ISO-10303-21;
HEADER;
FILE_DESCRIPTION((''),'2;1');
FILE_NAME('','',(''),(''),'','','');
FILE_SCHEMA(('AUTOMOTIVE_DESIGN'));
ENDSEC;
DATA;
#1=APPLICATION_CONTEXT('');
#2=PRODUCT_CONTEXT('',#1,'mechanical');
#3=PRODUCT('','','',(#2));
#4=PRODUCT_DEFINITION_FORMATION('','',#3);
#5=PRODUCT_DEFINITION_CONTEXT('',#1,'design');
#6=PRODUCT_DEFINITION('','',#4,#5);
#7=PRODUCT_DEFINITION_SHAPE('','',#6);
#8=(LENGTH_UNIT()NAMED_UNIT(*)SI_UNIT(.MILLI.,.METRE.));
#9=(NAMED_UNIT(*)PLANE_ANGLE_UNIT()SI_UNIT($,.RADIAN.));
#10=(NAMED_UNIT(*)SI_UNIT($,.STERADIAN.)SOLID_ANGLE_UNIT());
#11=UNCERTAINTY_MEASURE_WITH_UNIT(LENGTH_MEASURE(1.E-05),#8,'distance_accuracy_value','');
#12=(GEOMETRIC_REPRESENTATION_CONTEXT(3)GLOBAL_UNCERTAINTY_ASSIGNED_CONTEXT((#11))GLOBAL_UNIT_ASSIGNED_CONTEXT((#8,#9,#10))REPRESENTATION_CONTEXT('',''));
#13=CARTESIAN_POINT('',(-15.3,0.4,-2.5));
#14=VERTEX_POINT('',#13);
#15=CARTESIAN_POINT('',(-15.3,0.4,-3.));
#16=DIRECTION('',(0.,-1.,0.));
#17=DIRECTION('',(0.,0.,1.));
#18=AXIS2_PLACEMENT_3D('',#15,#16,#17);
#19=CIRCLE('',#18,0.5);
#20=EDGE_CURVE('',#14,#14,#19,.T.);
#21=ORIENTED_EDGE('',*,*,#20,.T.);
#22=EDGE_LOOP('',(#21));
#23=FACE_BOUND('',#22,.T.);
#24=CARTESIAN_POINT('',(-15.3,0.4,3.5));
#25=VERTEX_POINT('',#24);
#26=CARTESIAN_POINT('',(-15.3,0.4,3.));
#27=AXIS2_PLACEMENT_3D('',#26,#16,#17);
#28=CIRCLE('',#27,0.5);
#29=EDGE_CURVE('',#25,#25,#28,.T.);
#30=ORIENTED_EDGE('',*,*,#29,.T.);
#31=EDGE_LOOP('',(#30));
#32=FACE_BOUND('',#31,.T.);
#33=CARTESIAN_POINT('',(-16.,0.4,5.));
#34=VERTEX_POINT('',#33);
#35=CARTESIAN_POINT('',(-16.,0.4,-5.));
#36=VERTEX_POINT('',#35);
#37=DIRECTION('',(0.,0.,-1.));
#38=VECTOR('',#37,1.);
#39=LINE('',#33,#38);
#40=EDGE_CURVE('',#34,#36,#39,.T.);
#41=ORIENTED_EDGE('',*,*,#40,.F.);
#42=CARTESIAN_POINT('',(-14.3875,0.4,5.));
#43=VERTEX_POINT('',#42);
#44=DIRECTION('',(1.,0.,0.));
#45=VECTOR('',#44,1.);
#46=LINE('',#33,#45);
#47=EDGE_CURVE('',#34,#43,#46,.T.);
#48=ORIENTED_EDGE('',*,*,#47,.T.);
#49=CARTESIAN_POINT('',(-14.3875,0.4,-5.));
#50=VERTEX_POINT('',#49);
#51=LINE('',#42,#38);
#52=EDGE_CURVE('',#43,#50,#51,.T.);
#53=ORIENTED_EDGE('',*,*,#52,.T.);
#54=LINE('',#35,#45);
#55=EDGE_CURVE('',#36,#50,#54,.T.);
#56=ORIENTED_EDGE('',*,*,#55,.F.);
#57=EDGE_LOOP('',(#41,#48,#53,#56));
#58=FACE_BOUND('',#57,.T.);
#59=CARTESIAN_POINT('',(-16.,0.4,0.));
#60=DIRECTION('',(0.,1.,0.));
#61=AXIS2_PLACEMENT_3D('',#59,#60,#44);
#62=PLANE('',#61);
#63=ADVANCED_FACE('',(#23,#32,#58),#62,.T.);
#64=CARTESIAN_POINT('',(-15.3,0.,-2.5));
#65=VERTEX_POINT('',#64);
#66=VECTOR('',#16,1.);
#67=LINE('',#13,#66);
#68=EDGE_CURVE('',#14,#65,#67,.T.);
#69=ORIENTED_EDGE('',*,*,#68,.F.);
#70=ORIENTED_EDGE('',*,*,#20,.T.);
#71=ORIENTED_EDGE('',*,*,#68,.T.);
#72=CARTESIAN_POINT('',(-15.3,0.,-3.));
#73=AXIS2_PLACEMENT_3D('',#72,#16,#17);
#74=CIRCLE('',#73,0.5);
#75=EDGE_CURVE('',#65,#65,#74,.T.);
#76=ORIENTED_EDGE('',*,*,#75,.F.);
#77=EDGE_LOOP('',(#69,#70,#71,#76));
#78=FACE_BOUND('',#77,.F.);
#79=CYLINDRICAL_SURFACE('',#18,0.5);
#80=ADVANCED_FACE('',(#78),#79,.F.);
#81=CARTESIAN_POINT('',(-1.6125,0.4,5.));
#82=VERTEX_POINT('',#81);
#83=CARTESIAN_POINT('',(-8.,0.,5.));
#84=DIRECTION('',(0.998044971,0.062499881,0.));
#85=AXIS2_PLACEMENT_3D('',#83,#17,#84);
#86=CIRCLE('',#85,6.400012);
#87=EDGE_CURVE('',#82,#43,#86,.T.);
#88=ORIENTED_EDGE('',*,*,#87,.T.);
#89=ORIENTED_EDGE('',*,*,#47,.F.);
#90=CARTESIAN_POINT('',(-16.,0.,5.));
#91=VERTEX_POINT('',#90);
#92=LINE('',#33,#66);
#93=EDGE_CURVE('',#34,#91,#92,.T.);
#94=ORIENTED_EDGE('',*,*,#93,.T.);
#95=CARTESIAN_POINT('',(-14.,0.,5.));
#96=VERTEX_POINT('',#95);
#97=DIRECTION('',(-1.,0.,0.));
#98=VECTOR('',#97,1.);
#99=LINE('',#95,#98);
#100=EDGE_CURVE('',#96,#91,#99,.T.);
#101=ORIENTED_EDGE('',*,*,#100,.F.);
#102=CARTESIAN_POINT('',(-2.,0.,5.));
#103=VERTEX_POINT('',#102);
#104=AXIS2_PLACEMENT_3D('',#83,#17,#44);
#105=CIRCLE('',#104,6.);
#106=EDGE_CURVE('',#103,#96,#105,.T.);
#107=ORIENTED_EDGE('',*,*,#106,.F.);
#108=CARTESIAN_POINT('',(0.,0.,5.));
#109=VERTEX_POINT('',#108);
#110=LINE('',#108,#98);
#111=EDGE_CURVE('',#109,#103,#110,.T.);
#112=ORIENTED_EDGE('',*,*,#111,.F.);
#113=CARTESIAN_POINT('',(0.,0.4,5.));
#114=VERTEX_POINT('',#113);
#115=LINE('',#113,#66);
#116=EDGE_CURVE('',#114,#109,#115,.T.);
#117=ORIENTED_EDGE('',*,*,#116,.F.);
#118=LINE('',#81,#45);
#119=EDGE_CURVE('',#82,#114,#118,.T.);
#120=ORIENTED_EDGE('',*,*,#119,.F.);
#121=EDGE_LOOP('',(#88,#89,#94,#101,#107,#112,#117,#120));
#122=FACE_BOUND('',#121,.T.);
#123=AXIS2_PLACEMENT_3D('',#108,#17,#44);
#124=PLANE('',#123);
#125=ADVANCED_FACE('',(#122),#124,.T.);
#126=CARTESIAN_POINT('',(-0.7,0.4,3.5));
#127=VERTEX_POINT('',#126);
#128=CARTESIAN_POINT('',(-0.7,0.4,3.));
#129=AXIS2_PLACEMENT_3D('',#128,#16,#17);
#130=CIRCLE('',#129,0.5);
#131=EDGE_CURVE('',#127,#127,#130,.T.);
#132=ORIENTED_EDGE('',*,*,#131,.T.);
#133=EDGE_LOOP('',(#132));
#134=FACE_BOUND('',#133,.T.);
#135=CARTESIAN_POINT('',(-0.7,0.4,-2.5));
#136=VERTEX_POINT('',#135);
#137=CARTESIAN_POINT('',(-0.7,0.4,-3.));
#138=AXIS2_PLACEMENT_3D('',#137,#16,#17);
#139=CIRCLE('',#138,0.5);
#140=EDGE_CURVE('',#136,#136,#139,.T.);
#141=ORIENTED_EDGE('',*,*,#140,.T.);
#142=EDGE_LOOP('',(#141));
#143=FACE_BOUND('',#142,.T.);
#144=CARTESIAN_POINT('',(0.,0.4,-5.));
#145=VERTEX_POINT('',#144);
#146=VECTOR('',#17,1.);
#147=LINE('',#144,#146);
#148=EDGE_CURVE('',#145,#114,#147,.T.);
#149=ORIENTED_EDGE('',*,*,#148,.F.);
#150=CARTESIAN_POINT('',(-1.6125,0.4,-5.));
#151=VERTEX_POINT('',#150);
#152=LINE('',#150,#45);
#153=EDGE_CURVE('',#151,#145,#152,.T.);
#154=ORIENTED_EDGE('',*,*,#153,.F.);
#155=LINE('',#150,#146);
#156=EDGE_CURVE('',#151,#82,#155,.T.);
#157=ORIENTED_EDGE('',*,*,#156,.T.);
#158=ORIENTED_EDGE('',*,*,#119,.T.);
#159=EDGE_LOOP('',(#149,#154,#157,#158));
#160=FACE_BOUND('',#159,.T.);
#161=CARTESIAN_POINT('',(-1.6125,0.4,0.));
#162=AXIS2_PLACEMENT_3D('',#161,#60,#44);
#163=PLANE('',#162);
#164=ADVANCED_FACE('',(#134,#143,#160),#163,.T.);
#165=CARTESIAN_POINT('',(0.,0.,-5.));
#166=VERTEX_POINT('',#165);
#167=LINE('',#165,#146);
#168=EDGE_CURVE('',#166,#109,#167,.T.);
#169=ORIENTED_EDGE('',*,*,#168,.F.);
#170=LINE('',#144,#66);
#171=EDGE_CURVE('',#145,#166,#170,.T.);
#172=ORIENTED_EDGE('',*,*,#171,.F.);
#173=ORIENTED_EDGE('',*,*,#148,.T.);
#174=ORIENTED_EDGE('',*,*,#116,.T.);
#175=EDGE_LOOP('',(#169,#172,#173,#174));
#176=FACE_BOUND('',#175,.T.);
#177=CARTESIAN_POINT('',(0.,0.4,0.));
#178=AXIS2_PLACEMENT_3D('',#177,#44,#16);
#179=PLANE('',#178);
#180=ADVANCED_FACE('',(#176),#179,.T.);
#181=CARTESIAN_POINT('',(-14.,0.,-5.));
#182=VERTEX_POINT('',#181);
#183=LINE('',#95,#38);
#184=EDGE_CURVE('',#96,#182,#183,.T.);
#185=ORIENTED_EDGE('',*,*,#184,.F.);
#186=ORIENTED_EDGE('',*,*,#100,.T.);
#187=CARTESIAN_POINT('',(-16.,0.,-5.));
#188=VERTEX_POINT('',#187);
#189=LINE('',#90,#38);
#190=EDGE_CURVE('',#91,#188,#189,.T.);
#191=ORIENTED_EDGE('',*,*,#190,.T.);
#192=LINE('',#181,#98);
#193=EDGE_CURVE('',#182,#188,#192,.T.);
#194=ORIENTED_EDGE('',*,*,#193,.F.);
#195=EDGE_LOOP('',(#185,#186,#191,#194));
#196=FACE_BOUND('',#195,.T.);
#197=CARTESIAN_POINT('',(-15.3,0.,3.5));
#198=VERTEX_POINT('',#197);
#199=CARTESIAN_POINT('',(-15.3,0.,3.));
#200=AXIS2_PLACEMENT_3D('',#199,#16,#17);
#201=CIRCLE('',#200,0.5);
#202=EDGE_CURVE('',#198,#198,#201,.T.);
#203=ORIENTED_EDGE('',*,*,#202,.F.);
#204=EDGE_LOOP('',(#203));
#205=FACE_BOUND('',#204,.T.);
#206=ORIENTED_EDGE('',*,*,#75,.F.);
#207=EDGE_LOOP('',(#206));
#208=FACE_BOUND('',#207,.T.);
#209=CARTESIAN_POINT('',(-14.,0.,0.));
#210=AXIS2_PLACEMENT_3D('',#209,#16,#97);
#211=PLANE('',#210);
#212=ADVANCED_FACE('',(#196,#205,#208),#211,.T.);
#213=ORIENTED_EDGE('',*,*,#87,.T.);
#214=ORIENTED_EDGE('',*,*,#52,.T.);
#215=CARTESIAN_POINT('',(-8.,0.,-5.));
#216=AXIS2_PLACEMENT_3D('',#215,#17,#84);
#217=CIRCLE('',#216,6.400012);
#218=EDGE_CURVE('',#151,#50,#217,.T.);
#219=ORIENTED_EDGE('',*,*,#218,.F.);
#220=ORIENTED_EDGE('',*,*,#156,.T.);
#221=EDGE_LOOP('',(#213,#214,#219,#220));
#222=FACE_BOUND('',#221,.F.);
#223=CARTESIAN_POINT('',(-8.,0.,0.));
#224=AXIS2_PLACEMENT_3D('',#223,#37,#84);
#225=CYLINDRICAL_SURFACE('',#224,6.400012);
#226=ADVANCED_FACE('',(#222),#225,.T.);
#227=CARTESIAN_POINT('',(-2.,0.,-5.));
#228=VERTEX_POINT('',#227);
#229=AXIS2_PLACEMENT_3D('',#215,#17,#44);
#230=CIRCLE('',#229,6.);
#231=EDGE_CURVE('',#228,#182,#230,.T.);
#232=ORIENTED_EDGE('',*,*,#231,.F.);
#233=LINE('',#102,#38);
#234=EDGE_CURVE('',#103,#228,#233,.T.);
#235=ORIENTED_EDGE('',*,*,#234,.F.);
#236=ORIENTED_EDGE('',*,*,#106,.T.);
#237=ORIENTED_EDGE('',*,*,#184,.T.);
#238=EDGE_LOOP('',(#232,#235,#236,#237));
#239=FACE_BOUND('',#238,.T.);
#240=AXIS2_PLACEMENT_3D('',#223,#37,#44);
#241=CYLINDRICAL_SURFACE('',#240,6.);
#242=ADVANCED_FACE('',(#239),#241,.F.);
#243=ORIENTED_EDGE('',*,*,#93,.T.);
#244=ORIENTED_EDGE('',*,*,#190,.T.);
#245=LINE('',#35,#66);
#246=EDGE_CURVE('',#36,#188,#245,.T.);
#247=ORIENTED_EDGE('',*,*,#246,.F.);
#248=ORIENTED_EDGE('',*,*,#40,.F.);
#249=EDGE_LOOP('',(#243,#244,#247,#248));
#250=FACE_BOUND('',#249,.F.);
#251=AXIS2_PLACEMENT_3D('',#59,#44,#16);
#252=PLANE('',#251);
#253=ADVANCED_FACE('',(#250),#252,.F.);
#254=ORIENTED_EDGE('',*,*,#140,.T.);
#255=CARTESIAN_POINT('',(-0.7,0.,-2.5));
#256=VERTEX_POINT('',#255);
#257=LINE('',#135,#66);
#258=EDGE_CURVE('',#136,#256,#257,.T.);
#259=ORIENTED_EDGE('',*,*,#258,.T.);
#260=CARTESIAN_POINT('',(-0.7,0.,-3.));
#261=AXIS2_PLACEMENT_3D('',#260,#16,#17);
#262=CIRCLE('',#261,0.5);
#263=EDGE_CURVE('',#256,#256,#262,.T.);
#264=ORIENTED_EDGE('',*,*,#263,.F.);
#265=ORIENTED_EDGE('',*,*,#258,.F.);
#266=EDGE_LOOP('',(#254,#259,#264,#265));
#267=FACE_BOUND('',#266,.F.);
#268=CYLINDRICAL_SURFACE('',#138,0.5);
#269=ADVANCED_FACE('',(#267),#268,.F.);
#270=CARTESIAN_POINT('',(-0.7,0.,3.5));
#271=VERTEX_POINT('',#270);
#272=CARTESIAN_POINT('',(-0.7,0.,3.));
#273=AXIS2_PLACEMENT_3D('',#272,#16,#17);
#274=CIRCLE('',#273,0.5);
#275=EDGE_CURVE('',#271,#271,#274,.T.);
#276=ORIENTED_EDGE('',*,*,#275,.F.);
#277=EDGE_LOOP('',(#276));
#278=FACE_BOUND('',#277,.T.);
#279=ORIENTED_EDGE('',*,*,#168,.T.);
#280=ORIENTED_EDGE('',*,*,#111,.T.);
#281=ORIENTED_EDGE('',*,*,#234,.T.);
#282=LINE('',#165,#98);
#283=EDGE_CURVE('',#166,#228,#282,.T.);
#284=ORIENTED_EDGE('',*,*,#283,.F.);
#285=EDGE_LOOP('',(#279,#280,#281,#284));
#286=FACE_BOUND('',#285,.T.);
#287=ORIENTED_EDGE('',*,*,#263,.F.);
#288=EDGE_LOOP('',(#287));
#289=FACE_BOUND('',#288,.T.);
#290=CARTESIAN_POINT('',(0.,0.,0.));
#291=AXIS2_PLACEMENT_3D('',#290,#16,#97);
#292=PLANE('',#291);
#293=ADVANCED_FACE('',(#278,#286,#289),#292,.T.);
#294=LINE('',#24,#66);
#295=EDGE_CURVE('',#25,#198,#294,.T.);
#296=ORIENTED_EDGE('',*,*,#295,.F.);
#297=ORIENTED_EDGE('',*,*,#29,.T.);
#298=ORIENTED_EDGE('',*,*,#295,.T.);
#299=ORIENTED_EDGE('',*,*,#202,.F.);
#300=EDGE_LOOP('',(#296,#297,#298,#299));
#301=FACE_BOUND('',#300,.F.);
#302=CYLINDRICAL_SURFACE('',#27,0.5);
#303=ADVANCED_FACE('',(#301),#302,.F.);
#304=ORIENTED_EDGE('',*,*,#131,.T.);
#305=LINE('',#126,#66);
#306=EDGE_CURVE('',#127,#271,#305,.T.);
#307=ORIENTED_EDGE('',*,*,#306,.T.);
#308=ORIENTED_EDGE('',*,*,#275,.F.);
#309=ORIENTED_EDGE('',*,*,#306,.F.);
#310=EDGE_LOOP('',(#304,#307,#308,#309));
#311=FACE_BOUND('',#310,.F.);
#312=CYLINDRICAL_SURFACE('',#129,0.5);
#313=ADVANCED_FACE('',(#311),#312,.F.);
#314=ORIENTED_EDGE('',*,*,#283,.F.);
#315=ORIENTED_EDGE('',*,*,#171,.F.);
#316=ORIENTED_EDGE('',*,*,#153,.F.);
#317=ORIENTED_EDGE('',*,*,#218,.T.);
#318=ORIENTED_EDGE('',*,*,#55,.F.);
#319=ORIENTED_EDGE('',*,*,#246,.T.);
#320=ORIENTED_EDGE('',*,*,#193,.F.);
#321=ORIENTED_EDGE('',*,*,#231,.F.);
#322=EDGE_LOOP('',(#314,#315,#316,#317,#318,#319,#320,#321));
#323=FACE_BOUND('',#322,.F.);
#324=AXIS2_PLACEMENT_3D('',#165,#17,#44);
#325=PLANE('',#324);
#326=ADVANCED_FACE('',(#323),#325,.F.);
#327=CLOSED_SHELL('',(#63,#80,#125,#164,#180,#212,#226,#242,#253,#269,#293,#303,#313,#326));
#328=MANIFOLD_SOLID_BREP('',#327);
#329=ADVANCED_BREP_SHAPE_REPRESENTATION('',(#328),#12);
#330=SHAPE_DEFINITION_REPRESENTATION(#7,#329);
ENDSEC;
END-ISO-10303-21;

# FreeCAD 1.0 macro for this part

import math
import FreeCAD as App
import Part
import Sketcher

V = App.Vector

doc = App.newDocument("Part")
body = doc.addObject("PartDesign::Body", "Body")

sketch1 = body.newObject("Sketcher::SketchObject", "Sketch")
sketch1.AttachmentSupport = (doc.getObject("XY_Plane"), [""])
sketch1.MapMode = "FlatFace"
sketch1.addGeometry([
    Part.LineSegment(V(-2, 0, 0), V(0, 0, 0)),
    Part.LineSegment(V(0, 0, 0), V(0, 0.4, 0)),
    Part.LineSegment(V(0, 0.4, 0), V(-1.61, 0.4, 0)),
    Part.ArcOfCircle(Part.Circle(V(-8, 0, 0), V(0, 0, 1), 6.4), math.radians(4), math.radians(176)),
    Part.LineSegment(V(-14.39, 0.4, 0), V(-16, 0.4, 0)),
    Part.LineSegment(V(-16, 0.4, 0), V(-16, 0, 0)),
    Part.LineSegment(V(-16, 0, 0), V(-14, 0, 0)),
    Part.ArcOfCircle(Part.Circle(V(-8, 0, 0), V(0, 0, 1), 6), math.radians(0), math.radians(180)),
], False)
sketch1.addConstraint([
    Sketcher.Constraint("Coincident", 0, 2, 1, 1),
    Sketcher.Constraint("Coincident", 1, 2, 2, 1),
    Sketcher.Constraint("Coincident", 2, 2, 3, 1),
    Sketcher.Constraint("Coincident", 3, 2, 4, 1),
    Sketcher.Constraint("Coincident", 4, 2, 5, 1),
    Sketcher.Constraint("Coincident", 5, 2, 6, 1),
    Sketcher.Constraint("Coincident", 6, 2, 7, 2),
    Sketcher.Constraint("Coincident", 7, 1, 0, 1),
    Sketcher.Constraint("Horizontal", 0),
    Sketcher.Constraint("Vertical", 1),
    Sketcher.Constraint("Horizontal", 2),
    Sketcher.Constraint("Horizontal", 4),
    Sketcher.Constraint("Vertical", 5),
    Sketcher.Constraint("Horizontal", 6),
    Sketcher.Constraint("Coincident", 0, 2, -1, 1),
    Sketcher.Constraint("Coincident", 7, 3, 3, 3),
    Sketcher.Constraint("PointOnObject", 3, 3, -1),
    Sketcher.Constraint("PointOnObject", 5, 2, -1),
    Sketcher.Constraint("Horizontal", 2, 2, 3, 2),
    Sketcher.Constraint("Equal", 2, 4),
    Sketcher.Constraint("Radius", 7, 6.0),
    Sketcher.Constraint("Radius", 3, 6.4),
    Sketcher.Constraint("DistanceX", 0, 1, 0, 2, 2.0),
    Sketcher.Constraint("DistanceY", 1, 1, 1, 2, 0.4),
])
pad1 = body.newObject("PartDesign::Pad", "Pad")
pad1.Profile = sketch1
pad1.Length = 10
pad1.Midplane = True

sketch2 = body.newObject("Sketcher::SketchObject", "Sketch001")
sketch2.AttachmentSupport = (doc.getObject("XZ_Plane"), [""])
sketch2.MapMode = "FlatFace"
sketch2.AttachmentOffset = App.Placement(V(0, 0, -0.4), App.Rotation())
sketch2.addGeometry([
    Part.Circle(V(-0.7, 3, 0), V(0, 0, 1), 0.25),
    Part.Circle(V(-0.7, -3, 0), V(0, 0, 1), 0.25),
], False)
sketch2.addConstraint([
    Sketcher.Constraint("Equal", 0, 1),
    Sketcher.Constraint("Symmetric", 0, 3, 1, 3, -1),
    Sketcher.Constraint("Diameter", 0, 0.5),
    Sketcher.Constraint("DistanceY", -1, 1, 0, 3, 3.0),
    Sketcher.Constraint("DistanceX", 0, 3, -1, 1, 0.7),
])
doc.recompute()
hole = body.newObject("PartDesign::Hole", "Hole")
hole.Profile = sketch2
hole.ThreadType = "None"
hole.Diameter = 0.5
hole.DepthType = "ThroughAll"
hole.HoleCutType = "Counterbore"
hole.HoleCutDiameter = 1
hole.HoleCutDepth = 1
hole.Reversed = True

sketch3 = body.newObject("Sketcher::SketchObject", "Sketch002")
sketch3.AttachmentSupport = (doc.getObject("XZ_Plane"), [""])
sketch3.MapMode = "FlatFace"
sketch3.AttachmentOffset = App.Placement(V(0, 0, -0.4), App.Rotation())
sketch3.addGeometry([
    Part.Circle(V(-15.3, -3, 0), V(0, 0, 1), 0.25),
    Part.Circle(V(-15.3, 3, 0), V(0, 0, 1), 0.25),
], False)
sketch3.addConstraint([
    Sketcher.Constraint("Equal", 0, 1),
    Sketcher.Constraint("Symmetric", 0, 3, 1, 3, -1),
    Sketcher.Constraint("Diameter", 0, 0.5),
    Sketcher.Constraint("DistanceY", 0, 3, -1, 1, 3.0),
    Sketcher.Constraint("DistanceX", 0, 3, -1, 1, 15.3),
])
doc.recompute()
hole2 = body.newObject("PartDesign::Hole", "Hole001")
hole2.Profile = sketch3
hole2.ThreadType = "None"
hole2.Diameter = 0.5
hole2.DepthType = "ThroughAll"
hole2.HoleCutType = "Counterbore"
hole2.HoleCutDiameter = 1
hole2.HoleCutDepth = 1
hole2.Reversed = True

doc.recompute()
